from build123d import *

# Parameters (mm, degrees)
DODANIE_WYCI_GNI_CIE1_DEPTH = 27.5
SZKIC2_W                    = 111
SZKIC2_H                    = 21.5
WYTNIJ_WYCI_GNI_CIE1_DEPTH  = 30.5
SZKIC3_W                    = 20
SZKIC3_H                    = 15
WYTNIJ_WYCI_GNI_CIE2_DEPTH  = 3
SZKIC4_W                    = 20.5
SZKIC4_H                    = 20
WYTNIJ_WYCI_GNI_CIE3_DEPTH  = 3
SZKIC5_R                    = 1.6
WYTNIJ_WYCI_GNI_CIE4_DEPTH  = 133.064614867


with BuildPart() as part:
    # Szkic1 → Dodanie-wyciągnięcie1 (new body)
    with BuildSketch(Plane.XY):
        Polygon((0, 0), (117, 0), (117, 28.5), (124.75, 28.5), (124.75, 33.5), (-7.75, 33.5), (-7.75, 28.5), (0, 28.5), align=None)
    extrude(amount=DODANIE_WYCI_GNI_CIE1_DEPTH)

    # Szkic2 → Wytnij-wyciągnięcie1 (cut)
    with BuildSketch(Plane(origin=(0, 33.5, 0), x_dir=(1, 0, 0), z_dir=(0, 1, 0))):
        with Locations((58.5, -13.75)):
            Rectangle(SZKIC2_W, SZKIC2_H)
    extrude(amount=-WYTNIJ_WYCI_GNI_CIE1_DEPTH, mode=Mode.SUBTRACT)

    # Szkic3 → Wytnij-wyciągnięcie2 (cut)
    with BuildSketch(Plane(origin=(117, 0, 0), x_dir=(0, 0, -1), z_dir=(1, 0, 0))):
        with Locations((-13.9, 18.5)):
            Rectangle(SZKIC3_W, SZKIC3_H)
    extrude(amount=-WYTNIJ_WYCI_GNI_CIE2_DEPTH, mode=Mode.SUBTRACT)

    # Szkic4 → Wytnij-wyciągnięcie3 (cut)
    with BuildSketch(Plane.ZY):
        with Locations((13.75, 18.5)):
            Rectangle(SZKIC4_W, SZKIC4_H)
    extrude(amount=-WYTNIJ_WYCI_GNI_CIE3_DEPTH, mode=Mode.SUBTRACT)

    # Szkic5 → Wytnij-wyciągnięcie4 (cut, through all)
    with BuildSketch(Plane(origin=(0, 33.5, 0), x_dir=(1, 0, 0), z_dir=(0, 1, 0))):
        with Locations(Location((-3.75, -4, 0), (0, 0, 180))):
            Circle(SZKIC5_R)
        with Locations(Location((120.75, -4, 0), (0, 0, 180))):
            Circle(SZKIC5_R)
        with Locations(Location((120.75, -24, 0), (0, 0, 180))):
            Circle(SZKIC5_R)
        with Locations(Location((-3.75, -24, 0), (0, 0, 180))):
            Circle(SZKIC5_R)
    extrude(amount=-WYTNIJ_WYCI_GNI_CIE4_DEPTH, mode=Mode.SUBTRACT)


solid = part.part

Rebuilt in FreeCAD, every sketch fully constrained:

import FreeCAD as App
import Part
import Sketcher
from FreeCAD import Vector
Q = App.Units.Quantity

doc = App.newDocument("Part")
body = doc.addObject("PartDesign::Body", "Body")

# Sketch on XY plane
sketch1 = body.newObject("Sketcher::SketchObject", "Sketch")
sketch1.AttachmentSupport = (doc.getObject("XY_Plane"), [""])
sketch1.MapMode = "FlatFace"
sketch1.addGeometry([
    Part.LineSegment(Vector(0, 0, 0), Vector(117, 0, 0)),  # 0
    Part.LineSegment(Vector(117, 0, 0), Vector(117, 28.5, 0)),  # 1
    Part.LineSegment(Vector(117, 28.5, 0), Vector(124.75, 28.5, 0)),  # 2
    Part.LineSegment(Vector(124.75, 28.5, 0), Vector(124.75, 33.5, 0)),  # 3
    Part.LineSegment(Vector(124.75, 33.5, 0), Vector(-7.75, 33.5, 0)),  # 4
    Part.LineSegment(Vector(-7.75, 33.5, 0), Vector(-7.75, 28.5, 0)),  # 5
    Part.LineSegment(Vector(-7.75, 28.5, 0), Vector(0, 28.5, 0)),  # 6
    Part.LineSegment(Vector(0, 28.5, 0), Vector(0, 0, 0)),  # 7
], False)
sketch1.addConstraint([
    Sketcher.Constraint("Coincident", 0, 2, 1, 1),
    Sketcher.Constraint("Coincident", 1, 2, 2, 1),
    Sketcher.Constraint("Coincident", 2, 2, 3, 1),
    Sketcher.Constraint("Coincident", 3, 2, 4, 1),
    Sketcher.Constraint("Coincident", 4, 2, 5, 1),
    Sketcher.Constraint("Coincident", 5, 2, 6, 1),
    Sketcher.Constraint("Coincident", 6, 2, 7, 1),
    Sketcher.Constraint("Coincident", 7, 2, 0, 1),
    Sketcher.Constraint("Horizontal", 0),
    Sketcher.Constraint("Vertical", 1),
    Sketcher.Constraint("Horizontal", 2),
    Sketcher.Constraint("Vertical", 3),
    Sketcher.Constraint("Horizontal", 4),
    Sketcher.Constraint("Vertical", 5),
    Sketcher.Constraint("Horizontal", 6),
    Sketcher.Constraint("Vertical", 7),
    Sketcher.Constraint("Coincident", 7, 2, -1, 1),
    Sketcher.Constraint("Horizontal", 2, 2, 5, 2),
    Sketcher.Constraint("Equal", 2, 6),
    Sketcher.Constraint("DistanceX", 0, 1, 0, 2, Q("117 mm")),
    Sketcher.Constraint("DistanceY", 3, 1, 3, 2, Q("5 mm")),
    Sketcher.Constraint("DistanceX", 4, 2, 4, 1, Q("132.5 mm")),
    Sketcher.Constraint("DistanceY", 1, 1, 1, 2, Q("28.5 mm")),
])
pad1 = body.newObject("PartDesign::Pad", "Pad")
pad1.Profile = sketch1
pad1.Length = 27.5

# Sketch on XZ plane
sketch2 = body.newObject("Sketcher::SketchObject", "Sketch001")
sketch2.AttachmentSupport = (doc.getObject("XZ_Plane"), [""])
sketch2.MapMode = "FlatFace"
sketch2.AttachmentOffset = App.Placement(Vector(0, 0, -33.5), App.Rotation())
sketch2.addGeometry([
    Part.LineSegment(Vector(3, 3, 0), Vector(3, 24.5, 0)),
    Part.LineSegment(Vector(3, 24.5, 0), Vector(114, 24.5, 0)),
    Part.LineSegment(Vector(114, 24.5, 0), Vector(114, 3, 0)),
    Part.LineSegment(Vector(114, 3, 0), Vector(3, 3, 0)),
], False)
sketch2.addConstraint([
    Sketcher.Constraint("Coincident", 0, 2, 1, 1),
    Sketcher.Constraint("Coincident", 1, 2, 2, 1),
    Sketcher.Constraint("Coincident", 2, 2, 3, 1),
    Sketcher.Constraint("Coincident", 3, 2, 0, 1),
    Sketcher.Constraint("Vertical", 0),
    Sketcher.Constraint("Horizontal", 1),
    Sketcher.Constraint("Vertical", 2),
    Sketcher.Constraint("Horizontal", 3),
    Sketcher.Constraint("DistanceX", 1, 1, 1, 2, Q("111 mm")),
    Sketcher.Constraint("DistanceY", 0, 1, 0, 2, Q("21.5 mm")),
    Sketcher.Constraint("DistanceX", -1, 1, 0, 2, Q("3 mm")),
    Sketcher.Constraint("DistanceY", -1, 1, 2, 2, Q("3 mm")),
])
pocket1 = body.newObject("PartDesign::Pocket", "Pocket")
pocket1.Profile = sketch2
pocket1.Length = 30.5
pocket1.Reversed = True

# Sketch on YZ plane
sketch3 = body.newObject("Sketcher::SketchObject", "Sketch002")
sketch3.AttachmentSupport = (doc.getObject("YZ_Plane"), [""])
sketch3.MapMode = "FlatFace"
sketch3.AttachmentOffset = App.Placement(Vector(0, 0, 117), App.Rotation())
sketch3.addGeometry([
    Part.LineSegment(Vector(26, 23.9, 0), Vector(11, 23.9, 0)),
    Part.LineSegment(Vector(11, 23.9, 0), Vector(11, 3.9, 0)),
    Part.LineSegment(Vector(11, 3.9, 0), Vector(26, 3.9, 0)),
    Part.LineSegment(Vector(26, 3.9, 0), Vector(26, 23.9, 0)),
], False)
sketch3.addConstraint([
    Sketcher.Constraint("Coincident", 0, 2, 1, 1),
    Sketcher.Constraint("Coincident", 1, 2, 2, 1),
    Sketcher.Constraint("Coincident", 2, 2, 3, 1),
    Sketcher.Constraint("Coincident", 3, 2, 0, 1),
    Sketcher.Constraint("Horizontal", 0),
    Sketcher.Constraint("Vertical", 1),
    Sketcher.Constraint("Horizontal", 2),
    Sketcher.Constraint("Vertical", 3),
    Sketcher.Constraint("DistanceX", 0, 2, 0, 1, Q("15 mm")),
    Sketcher.Constraint("DistanceY", 1, 2, 1, 1, Q("20 mm")),
    Sketcher.Constraint("DistanceX", -1, 1, 0, 2, Q("11 mm")),
    Sketcher.Constraint("DistanceY", -1, 1, 0, 2, Q("23.9 mm")),
])
pocket2 = body.newObject("PartDesign::Pocket", "Pocket001")
pocket2.Profile = sketch3
pocket2.Length = 3

# Sketch on YZ plane
sketch4 = body.newObject("Sketcher::SketchObject", "Sketch003")
sketch4.AttachmentSupport = (doc.getObject("YZ_Plane"), [""])
sketch4.MapMode = "FlatFace"
sketch4.addGeometry([
    Part.LineSegment(Vector(28.5, 3.5, 0), Vector(8.5, 3.5, 0)),
    Part.LineSegment(Vector(8.5, 3.5, 0), Vector(8.5, 24, 0)),
    Part.LineSegment(Vector(8.5, 24, 0), Vector(28.5, 24, 0)),
    Part.LineSegment(Vector(28.5, 24, 0), Vector(28.5, 3.5, 0)),
], False)
sketch4.addConstraint([
    Sketcher.Constraint("Coincident", 0, 2, 1, 1),
    Sketcher.Constraint("Coincident", 1, 2, 2, 1),
    Sketcher.Constraint("Coincident", 2, 2, 3, 1),
    Sketcher.Constraint("Coincident", 3, 2, 0, 1),
    Sketcher.Constraint("Horizontal", 0),
    Sketcher.Constraint("Vertical", 1),
    Sketcher.Constraint("Horizontal", 2),
    Sketcher.Constraint("Vertical", 3),
    Sketcher.Constraint("DistanceX", 0, 2, 0, 1, Q("20 mm")),
    Sketcher.Constraint("DistanceY", 1, 1, 1, 2, Q("20.5 mm")),
    Sketcher.Constraint("DistanceY", -1, 1, 1, 2, Q("24 mm")),
    Sketcher.Constraint("DistanceX", -1, 1, 0, 2, Q("8.5 mm")),
])
pocket3 = body.newObject("PartDesign::Pocket", "Pocket002")
pocket3.Profile = sketch4
pocket3.Length = 3
pocket3.Reversed = True

# Sketch on XZ plane
sketch5 = body.newObject("Sketcher::SketchObject", "Sketch004")
sketch5.AttachmentSupport = (doc.getObject("XZ_Plane"), [""])
sketch5.MapMode = "FlatFace"
sketch5.AttachmentOffset = App.Placement(Vector(0, 0, -33.5), App.Rotation())
sketch5.addGeometry([
    Part.Circle(Vector(-3.75, 4, 0), Vector(0, 0, 1), 1.6),
    Part.Circle(Vector(120.75, 4, 0), Vector(0, 0, 1), 1.6),
    Part.Circle(Vector(120.75, 24, 0), Vector(0, 0, 1), 1.6),
    Part.Circle(Vector(-3.75, 24, 0), Vector(0, 0, 1), 1.6),
], False)
sketch5.addConstraint([
    Sketcher.Constraint("Equal", 0, 1),
    Sketcher.Constraint("Equal", 1, 2),
    Sketcher.Constraint("Equal", 2, 3),
    Sketcher.Constraint("Horizontal", 0, 3, 1, 3),
    Sketcher.Constraint("Horizontal", 2, 3, 3, 3),
    Sketcher.Constraint("Vertical", 1, 3, 2, 3),
    Sketcher.Constraint("Vertical", 0, 3, 3, 3),
    Sketcher.Constraint("Diameter", 0, Q("3.2 mm")),
    Sketcher.Constraint("DistanceY", -1, 1, 0, 3, Q("4 mm")),
    Sketcher.Constraint("DistanceY", -1, 1, 2, 3, Q("24 mm")),
    Sketcher.Constraint("DistanceX", 0, 3, 1, 3, Q("124.5 mm")),
    Sketcher.Constraint("DistanceX", 0, 3, -1, 1, Q("3.75 mm")),
])
pocket4 = body.newObject("PartDesign::Pocket", "Pocket003")
pocket4.Profile = sketch5
pocket4.Type = "ThroughAll"
pocket4.Reversed = True

doc.recompute()
